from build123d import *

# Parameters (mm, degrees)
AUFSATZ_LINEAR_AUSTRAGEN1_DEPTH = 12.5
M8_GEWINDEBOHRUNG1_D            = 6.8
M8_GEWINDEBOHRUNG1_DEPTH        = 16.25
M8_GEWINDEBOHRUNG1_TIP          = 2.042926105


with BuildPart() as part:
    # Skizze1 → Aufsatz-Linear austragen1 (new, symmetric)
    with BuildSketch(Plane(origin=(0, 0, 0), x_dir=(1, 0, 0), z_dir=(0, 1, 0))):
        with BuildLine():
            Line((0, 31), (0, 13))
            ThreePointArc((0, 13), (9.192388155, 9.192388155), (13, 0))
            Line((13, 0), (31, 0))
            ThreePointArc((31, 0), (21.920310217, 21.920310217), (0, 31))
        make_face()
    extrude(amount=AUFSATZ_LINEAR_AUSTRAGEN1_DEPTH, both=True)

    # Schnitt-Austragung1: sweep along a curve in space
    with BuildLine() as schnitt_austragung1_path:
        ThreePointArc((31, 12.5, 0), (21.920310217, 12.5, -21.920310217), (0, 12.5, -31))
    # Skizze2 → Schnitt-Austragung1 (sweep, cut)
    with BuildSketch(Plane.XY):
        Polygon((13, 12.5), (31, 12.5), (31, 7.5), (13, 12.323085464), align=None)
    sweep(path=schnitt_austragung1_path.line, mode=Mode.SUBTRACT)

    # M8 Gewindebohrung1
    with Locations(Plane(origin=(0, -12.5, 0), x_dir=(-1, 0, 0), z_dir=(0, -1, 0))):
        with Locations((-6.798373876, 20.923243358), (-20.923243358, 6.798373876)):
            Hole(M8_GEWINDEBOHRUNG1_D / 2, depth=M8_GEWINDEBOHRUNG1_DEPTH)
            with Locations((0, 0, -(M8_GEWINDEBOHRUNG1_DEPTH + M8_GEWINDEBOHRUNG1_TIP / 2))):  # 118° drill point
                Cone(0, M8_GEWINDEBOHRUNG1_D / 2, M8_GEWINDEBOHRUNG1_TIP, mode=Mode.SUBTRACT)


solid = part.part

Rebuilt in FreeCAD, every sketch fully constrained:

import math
import FreeCAD as App
import Part
import Sketcher
from FreeCAD import Vector
Q = App.Units.Quantity


def add_polygon(sketch, points):
    """Adds a closed chain of lines whose ends are joined by coincident constraints."""
    first, n = sketch.GeometryCount, len(points)
    for a, b in zip(points, points[1:] + points[:1]):
        sketch.addGeometry(Part.LineSegment(App.Vector(*a, 0), App.Vector(*b, 0)), False)
    for i in range(n):
        sketch.addConstraint(Sketcher.Constraint("Coincident", first + i, 2, first + (i + 1) % n, 1))

doc = App.newDocument("Part")
body = doc.addObject("PartDesign::Body", "Body")

sketch1 = body.newObject("Sketcher::SketchObject", "Sketch")
sketch1.AttachmentSupport = (doc.getObject("XZ_Plane"), [""])
sketch1.MapMode = "FlatFace"
sketch1.addGeometry([
    Part.LineSegment(Vector(0, -31, 0), Vector(0, -13, 0)),
    Part.ArcOfCircle(Part.Circle(Vector(0, 0, 0), Vector(0, 0, 1), 13), math.radians(-90), math.radians(0)),
    Part.LineSegment(Vector(13, 0, 0), Vector(31, 0, 0)),
    Part.ArcOfCircle(Part.Circle(Vector(0, 0, 0), Vector(0, 0, 1), 31), math.radians(-90), math.radians(0)),
], False)
sketch1.addConstraint([
    Sketcher.Constraint("Coincident", 0, 2, 1, 1),
    Sketcher.Constraint("Coincident", 1, 2, 2, 1),
    Sketcher.Constraint("Coincident", 2, 2, 3, 2),
    Sketcher.Constraint("Coincident", 3, 1, 0, 1),
    Sketcher.Constraint("Vertical", 0),
    Sketcher.Constraint("Horizontal", 2),
    Sketcher.Constraint("Coincident", 1, 3, -1, 1),
    Sketcher.Constraint("Coincident", 3, 3, -1, 1),
    Sketcher.Constraint("PointOnObject", 0, 2, -2),
    Sketcher.Constraint("PointOnObject", 1, 2, -1),
    Sketcher.Constraint("Radius", 1, Q("13 mm")),
    Sketcher.Constraint("Radius", 3, Q("31 mm")),
])
pad1 = body.newObject("PartDesign::Pad", "Pad")
pad1.Profile = sketch1
pad1.Length = 25
pad1.Midplane = True

sketch2 = body.newObject("Sketcher::SketchObject", "Sketch001")
sketch2.AttachmentSupport = (doc.getObject("XY_Plane"), [""])
sketch2.MapMode = "FlatFace"
add_polygon(sketch2, [(31, 12.5), (13, 12.5), (13, 12.32), (31, 7.5)])
sketch2.addConstraint([
    Sketcher.Constraint("Horizontal", 0),
    Sketcher.Constraint("Vertical", 1),
    Sketcher.Constraint("Vertical", 3),
    Sketcher.Constraint("DistanceX", 0, 2, 0, 1, Q("18 mm")),
    Sketcher.Constraint("DistanceY", 3, 1, 3, 2, Q("5 mm")),
    Sketcher.Constraint("Angle", 2, Q("-15 deg")),
    Sketcher.Constraint("DistanceX", -1, 1, 0, 2, Q("13 mm")),
    Sketcher.Constraint("DistanceY", -1, 1, 0, 2, Q("12.5 mm")),
])

sketch3 = body.newObject("Sketcher::SketchObject", "Sketch002")
sketch3.AttachmentSupport = (doc.getObject("XZ_Plane"), [""])
sketch3.MapMode = "FlatFace"
sketch3.AttachmentOffset = App.Placement(Vector(0, 0, -12.5), App.Rotation())
sketch3.addGeometry(Part.ArcOfCircle(Part.Circle(Vector(0, 0, 0), Vector(0, 0, 1), 31), math.radians(-90), math.radians(0)), False)
sketch3.addConstraint([
    Sketcher.Constraint("Coincident", 0, 3, -1, 1),
    Sketcher.Constraint("PointOnObject", 0, 1, -2),
    Sketcher.Constraint("PointOnObject", 0, 2, -1),
    Sketcher.Constraint("Radius", 0, Q("31 mm")),
])
doc.recompute()

subtractivepipe = body.newObject("PartDesign::SubtractivePipe", "SubtractivePipe")
subtractivepipe.Profile = sketch2
subtractivepipe.Spine = (sketch3, ["Edge1"])

sketch4 = body.newObject("Sketcher::SketchObject", "Sketch003")
sketch4.AttachmentSupport = (doc.getObject("XZ_Plane"), [""])
sketch4.MapMode = "FlatFace"
sketch4.AttachmentOffset = App.Placement(Vector(0, 0, 12.5), App.Rotation())
sketch4.addGeometry([
    Part.Circle(Vector(6.8, -20.9, 0), Vector(0, 0, 1), 3.4),
    Part.Circle(Vector(20.9, -6.8, 0), Vector(0, 0, 1), 3.4),
], False)
sketch4.addConstraint([
    Sketcher.Constraint("Equal", 0, 1),
    Sketcher.Constraint("Diameter", 0, Q("6.8 mm")),
    Sketcher.Constraint("DistanceX", 0, 3, 1, 3, Q("14.124869 mm")),
    Sketcher.Constraint("DistanceY", 0, 3, 1, 3, Q("14.124869 mm")),
    Sketcher.Constraint("DistanceX", -1, 1, 0, 3, Q("6.798374 mm")),
    Sketcher.Constraint("DistanceY", 0, 3, -1, 1, Q("20.923243 mm")),
])
doc.recompute()
hole = body.newObject("PartDesign::Hole", "Hole")
hole.Profile = sketch4
hole.ThreadType = "None"
hole.Diameter = 6.8
hole.DepthType = "Dimension"
hole.Depth = 16.25
hole.DrillPoint = "Angled"
hole.DrillPointAngle = 118

doc.recompute()
